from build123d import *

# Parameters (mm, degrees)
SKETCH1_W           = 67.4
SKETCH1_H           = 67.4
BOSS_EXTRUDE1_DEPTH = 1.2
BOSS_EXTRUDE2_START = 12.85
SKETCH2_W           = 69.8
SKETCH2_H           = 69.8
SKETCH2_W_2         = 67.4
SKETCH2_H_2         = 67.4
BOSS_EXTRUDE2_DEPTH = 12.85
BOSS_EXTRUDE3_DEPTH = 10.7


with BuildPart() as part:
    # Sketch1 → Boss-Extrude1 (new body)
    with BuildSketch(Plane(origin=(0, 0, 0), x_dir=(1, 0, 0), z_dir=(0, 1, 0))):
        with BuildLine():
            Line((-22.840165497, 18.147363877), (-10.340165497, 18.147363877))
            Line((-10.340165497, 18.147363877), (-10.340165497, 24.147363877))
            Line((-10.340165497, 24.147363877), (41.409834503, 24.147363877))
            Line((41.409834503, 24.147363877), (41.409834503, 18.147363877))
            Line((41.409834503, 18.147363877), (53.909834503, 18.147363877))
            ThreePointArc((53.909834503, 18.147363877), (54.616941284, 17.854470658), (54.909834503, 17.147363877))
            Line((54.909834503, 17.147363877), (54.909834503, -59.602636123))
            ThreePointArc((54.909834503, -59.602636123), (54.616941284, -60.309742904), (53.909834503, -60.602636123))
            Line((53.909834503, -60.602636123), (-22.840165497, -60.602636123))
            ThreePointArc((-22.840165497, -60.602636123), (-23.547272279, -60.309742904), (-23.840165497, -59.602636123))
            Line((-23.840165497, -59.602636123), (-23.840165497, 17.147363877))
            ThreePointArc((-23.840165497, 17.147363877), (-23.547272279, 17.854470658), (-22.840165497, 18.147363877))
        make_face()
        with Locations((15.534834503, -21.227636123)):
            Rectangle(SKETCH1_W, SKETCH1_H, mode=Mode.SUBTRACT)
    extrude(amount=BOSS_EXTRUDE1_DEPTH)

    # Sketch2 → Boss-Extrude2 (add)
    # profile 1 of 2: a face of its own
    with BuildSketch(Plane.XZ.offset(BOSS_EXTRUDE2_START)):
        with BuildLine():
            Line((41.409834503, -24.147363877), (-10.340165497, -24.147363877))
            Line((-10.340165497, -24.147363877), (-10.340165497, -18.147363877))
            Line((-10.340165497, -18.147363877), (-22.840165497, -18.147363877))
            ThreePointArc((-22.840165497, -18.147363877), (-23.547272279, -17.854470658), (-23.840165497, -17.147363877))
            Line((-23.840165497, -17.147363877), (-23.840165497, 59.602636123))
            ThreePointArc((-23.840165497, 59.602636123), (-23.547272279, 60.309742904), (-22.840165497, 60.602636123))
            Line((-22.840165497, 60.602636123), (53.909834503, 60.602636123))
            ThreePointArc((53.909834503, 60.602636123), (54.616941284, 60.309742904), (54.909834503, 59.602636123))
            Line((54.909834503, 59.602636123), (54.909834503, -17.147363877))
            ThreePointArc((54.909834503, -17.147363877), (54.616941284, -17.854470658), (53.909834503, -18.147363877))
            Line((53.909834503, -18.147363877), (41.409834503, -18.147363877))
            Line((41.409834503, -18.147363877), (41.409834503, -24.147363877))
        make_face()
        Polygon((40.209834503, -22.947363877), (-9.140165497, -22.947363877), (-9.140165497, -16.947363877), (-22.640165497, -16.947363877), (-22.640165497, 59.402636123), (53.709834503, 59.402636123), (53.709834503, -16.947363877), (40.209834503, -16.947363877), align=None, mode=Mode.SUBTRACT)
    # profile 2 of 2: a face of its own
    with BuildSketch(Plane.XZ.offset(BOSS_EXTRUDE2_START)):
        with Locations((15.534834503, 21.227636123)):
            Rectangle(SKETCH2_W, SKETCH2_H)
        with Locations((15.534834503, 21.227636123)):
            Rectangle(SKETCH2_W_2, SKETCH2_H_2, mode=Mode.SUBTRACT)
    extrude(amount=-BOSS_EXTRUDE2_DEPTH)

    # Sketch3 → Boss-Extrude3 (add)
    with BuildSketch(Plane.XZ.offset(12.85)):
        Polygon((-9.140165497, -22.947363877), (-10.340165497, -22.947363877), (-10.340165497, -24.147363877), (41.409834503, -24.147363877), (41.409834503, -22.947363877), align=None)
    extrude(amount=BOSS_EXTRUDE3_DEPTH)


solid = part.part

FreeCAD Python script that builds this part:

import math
import FreeCAD as App
import Part
import Sketcher
from FreeCAD import Vector


def add_polygon(sketch, points):
    """Adds a closed chain of lines whose ends are joined by coincident constraints."""
    first, n = sketch.GeometryCount, len(points)
    for a, b in zip(points, points[1:] + points[:1]):
        sketch.addGeometry(Part.LineSegment(App.Vector(*a, 0), App.Vector(*b, 0)), False)
    for i in range(n):
        sketch.addConstraint(Sketcher.Constraint("Coincident", first + i, 2, first + (i + 1) % n, 1))

doc = App.newDocument("Part")
body = doc.addObject("PartDesign::Body", "Body")

sketch1 = body.newObject("Sketcher::SketchObject", "Sketch")
sketch1.AttachmentSupport = (doc.getObject("XZ_Plane"), [""])
sketch1.MapMode = "FlatFace"
sketch1.addGeometry(Part.LineSegment(Vector(-10.340165, -18.147364, 0), Vector(-22.840165, -18.147364, 0)), False)
sketch1.addGeometry(Part.ArcOfCircle(Part.Circle(Vector(-22.840165, -17.147364, 0), Vector(0, 0, 1), 1), math.radians(180), math.radians(270)), False)
sketch1.addGeometry(Part.LineSegment(Vector(-23.840165, -17.147364, 0), Vector(-23.840165, 59.602636, 0)), False)
sketch1.addGeometry(Part.ArcOfCircle(Part.Circle(Vector(-22.840165, 59.602636, 0), Vector(0, 0, 1), 1), math.radians(90), math.radians(180)), False)
sketch1.addGeometry(Part.LineSegment(Vector(-22.840165, 60.602636, 0), Vector(53.909835, 60.602636, 0)), False)
sketch1.addGeometry(Part.ArcOfCircle(Part.Circle(Vector(53.909835, 59.602636, 0), Vector(0, 0, 1), 1), math.radians(0), math.radians(90)), False)
sketch1.addGeometry(Part.LineSegment(Vector(54.909835, 59.602636, 0), Vector(54.909835, -17.147364, 0)), False)
sketch1.addGeometry(Part.ArcOfCircle(Part.Circle(Vector(53.909835, -17.147364, 0), Vector(0, 0, 1), 1), math.radians(-90), math.radians(0)), False)
sketch1.addGeometry(Part.LineSegment(Vector(53.909835, -18.147364, 0), Vector(41.409835, -18.147364, 0)), False)
sketch1.addGeometry(Part.LineSegment(Vector(41.409835, -18.147364, 0), Vector(41.409835, -24.147364, 0)), False)
sketch1.addGeometry(Part.LineSegment(Vector(41.409835, -24.147364, 0), Vector(-10.340165, -24.147364, 0)), False)
sketch1.addGeometry(Part.LineSegment(Vector(-10.340165, -24.147364, 0), Vector(-10.340165, -18.147364, 0)), False)
add_polygon(sketch1, [(-18.165165, 54.927636), (-18.165165, -12.472364), (49.234835, -12.472364), (49.234835, 54.927636)])
sketch1.addConstraint([
    Sketcher.Constraint("Tangent", 0, 2, 1, 2),
    Sketcher.Constraint("Tangent", 1, 1, 2, 1),
    Sketcher.Constraint("Tangent", 2, 2, 3, 2),
    Sketcher.Constraint("Tangent", 3, 1, 4, 1),
    Sketcher.Constraint("Tangent", 4, 2, 5, 2),
    Sketcher.Constraint("Tangent", 5, 1, 6, 1),
    Sketcher.Constraint("Tangent", 6, 2, 7, 2),
    Sketcher.Constraint("Tangent", 7, 1, 8, 1),
    Sketcher.Constraint("Coincident", 8, 2, 9, 1),
    Sketcher.Constraint("Coincident", 9, 2, 10, 1),
    Sketcher.Constraint("Coincident", 10, 2, 11, 1),
    Sketcher.Constraint("Coincident", 11, 2, 0, 1),
    Sketcher.Constraint("Horizontal", 0),
    Sketcher.Constraint("Vertical", 2),
    Sketcher.Constraint("Horizontal", 4),
    Sketcher.Constraint("Vertical", 6),
    Sketcher.Constraint("Horizontal", 8),
    Sketcher.Constraint("Vertical", 9),
    Sketcher.Constraint("Horizontal", 10),
    Sketcher.Constraint("Vertical", 11),
    Sketcher.Constraint("Vertical", 12),
    Sketcher.Constraint("Horizontal", 13),
    Sketcher.Constraint("Vertical", 14),
    Sketcher.Constraint("Horizontal", 15),
    Sketcher.Constraint("Equal", 1, 3),
    Sketcher.Constraint("Equal", 3, 5),
    Sketcher.Constraint("Equal", 5, 7),
    Sketcher.Constraint("Horizontal", 1, 3, 7, 3),
    Sketcher.Constraint("Equal", 0, 8),
    Sketcher.Constraint("Equal", 4, 2),
    Sketcher.Constraint("Equal", 15, 12),
    Sketcher.Constraint("Radius", 1, 1.0),
    Sketcher.Constraint("DistanceY", 9, 2, 9, 1, 6.0),
    Sketcher.Constraint("DistanceX", 0, 2, 0, 1, 12.5),
    Sketcher.Constraint("DistanceX", 13, 1, 13, 2, 67.4),
    Sketcher.Constraint("DistanceX", 4, 1, 4, 2, 76.75),
    Sketcher.Constraint("DistanceX", 1, 3, 12, 2, 4.675),
    Sketcher.Constraint("DistanceY", 1, 3, 12, 2, 4.675),
    Sketcher.Constraint("DistanceX", 1, 3, -1, 1, 22.840165),
    Sketcher.Constraint("DistanceY", 1, 3, -1, 1, 17.147364),
])
pad1 = body.newObject("PartDesign::Pad", "Pad")
pad1.Profile = sketch1
pad1.Length = 1.2
pad1.Reversed = True

sketch2 = body.newObject("Sketcher::SketchObject", "Sketch001")
sketch2.AttachmentSupport = (doc.getObject("XZ_Plane"), [""])
sketch2.MapMode = "FlatFace"
sketch2.AttachmentOffset = App.Placement(Vector(0, 0, 12.85), App.Rotation())
sketch2.addGeometry(Part.LineSegment(Vector(-10.340165, -24.147364, 0), Vector(41.409835, -24.147364, 0)), False)
sketch2.addGeometry(Part.LineSegment(Vector(41.409835, -24.147364, 0), Vector(41.409835, -18.147364, 0)), False)
sketch2.addGeometry(Part.LineSegment(Vector(41.409835, -18.147364, 0), Vector(53.909835, -18.147364, 0)), False)
sketch2.addGeometry(Part.ArcOfCircle(Part.Circle(Vector(53.909835, -17.147364, 0), Vector(0, 0, 1), 1), math.radians(-90), math.radians(0)), False)
sketch2.addGeometry(Part.LineSegment(Vector(54.909835, -17.147364, 0), Vector(54.909835, 59.602636, 0)), False)
sketch2.addGeometry(Part.ArcOfCircle(Part.Circle(Vector(53.909835, 59.602636, 0), Vector(0, 0, 1), 1), math.radians(0), math.radians(90)), False)
sketch2.addGeometry(Part.LineSegment(Vector(53.909835, 60.602636, 0), Vector(-22.840165, 60.602636, 0)), False)
sketch2.addGeometry(Part.ArcOfCircle(Part.Circle(Vector(-22.840165, 59.602636, 0), Vector(0, 0, 1), 1), math.radians(90), math.radians(180)), False)
sketch2.addGeometry(Part.LineSegment(Vector(-23.840165, 59.602636, 0), Vector(-23.840165, -17.147364, 0)), False)
sketch2.addGeometry(Part.ArcOfCircle(Part.Circle(Vector(-22.840165, -17.147364, 0), Vector(0, 0, 1), 1), math.radians(180), math.radians(270)), False)
sketch2.addGeometry(Part.LineSegment(Vector(-22.840165, -18.147364, 0), Vector(-10.340165, -18.147364, 0)), False)
sketch2.addGeometry(Part.LineSegment(Vector(-10.340165, -18.147364, 0), Vector(-10.340165, -24.147364, 0)), False)
add_polygon(sketch2, [(40.209835, -22.947364), (-9.140165, -22.947364), (-9.140165, -16.947364), (-22.640165, -16.947364), (-22.640165, 59.402636), (53.709835, 59.402636), (53.709835, -16.947364), (40.209835, -16.947364)])
add_polygon(sketch2, [(-19.365165, 56.127636), (-19.365165, -13.672364), (50.434835, -13.672364), (50.434835, 56.127636)])
add_polygon(sketch2, [(49.234835, -12.472364), (-18.165165, -12.472364), (-18.165165, 54.927636), (49.234835, 54.927636)])
sketch2.addConstraint([
    Sketcher.Constraint("Coincident", 0, 2, 1, 1),
    Sketcher.Constraint("Coincident", 1, 2, 2, 1),
    Sketcher.Constraint("Tangent", 2, 2, 3, 1),
    Sketcher.Constraint("Tangent", 3, 2, 4, 1),
    Sketcher.Constraint("Tangent", 4, 2, 5, 1),
    Sketcher.Constraint("Tangent", 5, 2, 6, 1),
    Sketcher.Constraint("Tangent", 6, 2, 7, 1),
    Sketcher.Constraint("Tangent", 7, 2, 8, 1),
    Sketcher.Constraint("Tangent", 8, 2, 9, 1),
    Sketcher.Constraint("Tangent", 9, 2, 10, 1),
    Sketcher.Constraint("Coincident", 10, 2, 11, 1),
    Sketcher.Constraint("Coincident", 11, 2, 0, 1),
    Sketcher.Constraint("Horizontal", 0),
    Sketcher.Constraint("Vertical", 1),
    Sketcher.Constraint("Horizontal", 2),
    Sketcher.Constraint("Vertical", 4),
    Sketcher.Constraint("Horizontal", 6),
    Sketcher.Constraint("Vertical", 8),
    Sketcher.Constraint("Horizontal", 10),
    Sketcher.Constraint("Vertical", 11),
    Sketcher.Constraint("Horizontal", 12),
    Sketcher.Constraint("Vertical", 13),
    Sketcher.Constraint("Horizontal", 14),
    Sketcher.Constraint("Vertical", 15),
    Sketcher.Constraint("Horizontal", 16),
    Sketcher.Constraint("Vertical", 17),
    Sketcher.Constraint("Horizontal", 18),
    Sketcher.Constraint("Vertical", 19),
    Sketcher.Constraint("Vertical", 20),
    Sketcher.Constraint("Horizontal", 21),
    Sketcher.Constraint("Vertical", 22),
    Sketcher.Constraint("Horizontal", 23),
    Sketcher.Constraint("Horizontal", 24),
    Sketcher.Constraint("Vertical", 25),
    Sketcher.Constraint("Horizontal", 26),
    Sketcher.Constraint("Vertical", 27),
    Sketcher.Constraint("Equal", 3, 5),
    Sketcher.Constraint("Equal", 5, 7),
    Sketcher.Constraint("Equal", 7, 9),
    Sketcher.Constraint("Horizontal", 3, 3, 9, 3),
    Sketcher.Constraint("Horizontal", 14, 2, 17, 2),
    Sketcher.Constraint("Equal", 2, 10),
    Sketcher.Constraint("Equal", 14, 18),
    Sketcher.Constraint("Equal", 6, 4),
    Sketcher.Constraint("Equal", 11, 13),
    Sketcher.Constraint("Equal", 16, 15),
    Sketcher.Constraint("Equal", 23, 20),
    Sketcher.Constraint("Equal", 26, 25),
    Sketcher.Constraint("Radius", 3, 1.0),
    Sketcher.Constraint("DistanceY", 1, 1, 1, 2, 6.0),
    Sketcher.Constraint("DistanceX", 2, 1, 2, 2, 12.5),
    Sketcher.Constraint("DistanceX", 14, 2, 14, 1, 13.5),
    Sketcher.Constraint("DistanceX", 21, 1, 21, 2, 69.8),
    Sketcher.Constraint("DistanceX", 24, 2, 24, 1, 67.4),
    Sketcher.Constraint("DistanceX", 0, 1, 0, 2, 51.75),
    Sketcher.Constraint("DistanceX", 12, 2, 12, 1, 49.35),
    Sketcher.Constraint("DistanceX", 11, 2, 12, 2, 1.2),
    Sketcher.Constraint("DistanceY", 11, 2, 12, 2, 1.2),
    Sketcher.Constraint("DistanceX", 20, 2, 24, 2, 1.2),
    Sketcher.Constraint("DistanceY", 20, 2, 24, 2, 1.2),
    Sketcher.Constraint("DistanceX", 14, 2, 20, 2, 3.275),
    Sketcher.Constraint("DistanceY", 14, 2, 20, 2, 3.275),
    Sketcher.Constraint("DistanceX", -1, 1, 3, 3, 53.909835),
    Sketcher.Constraint("DistanceY", 3, 3, -1, 1, 17.147364),
])
pad2 = body.newObject("PartDesign::Pad", "Pad001")
pad2.Profile = sketch2
pad2.Length = 12.85
pad2.Reversed = True

sketch3 = body.newObject("Sketcher::SketchObject", "Sketch002")
sketch3.AttachmentSupport = (doc.getObject("XZ_Plane"), [""])
sketch3.MapMode = "FlatFace"
sketch3.AttachmentOffset = App.Placement(Vector(0, 0, 12.85), App.Rotation())
add_polygon(sketch3, [(-10.340165, -22.947364), (-10.340165, -24.147364), (41.409835, -24.147364), (41.409835, -22.947364)])
sketch3.addConstraint([
    Sketcher.Constraint("Vertical", 0),
    Sketcher.Constraint("Horizontal", 1),
    Sketcher.Constraint("Vertical", 2),
    Sketcher.Constraint("Horizontal", 3),
    Sketcher.Constraint("DistanceY", 0, 2, 0, 1, 1.2),
    Sketcher.Constraint("DistanceX", 1, 1, 1, 2, 51.75),
    Sketcher.Constraint("DistanceX", 0, 2, -1, 1, 10.340165),
    Sketcher.Constraint("DistanceY", 0, 2, -1, 1, 24.147364),
])
pad3 = body.newObject("PartDesign::Pad", "Pad002")
pad3.Profile = sketch3
pad3.Length = 10.7

doc.recompute()
